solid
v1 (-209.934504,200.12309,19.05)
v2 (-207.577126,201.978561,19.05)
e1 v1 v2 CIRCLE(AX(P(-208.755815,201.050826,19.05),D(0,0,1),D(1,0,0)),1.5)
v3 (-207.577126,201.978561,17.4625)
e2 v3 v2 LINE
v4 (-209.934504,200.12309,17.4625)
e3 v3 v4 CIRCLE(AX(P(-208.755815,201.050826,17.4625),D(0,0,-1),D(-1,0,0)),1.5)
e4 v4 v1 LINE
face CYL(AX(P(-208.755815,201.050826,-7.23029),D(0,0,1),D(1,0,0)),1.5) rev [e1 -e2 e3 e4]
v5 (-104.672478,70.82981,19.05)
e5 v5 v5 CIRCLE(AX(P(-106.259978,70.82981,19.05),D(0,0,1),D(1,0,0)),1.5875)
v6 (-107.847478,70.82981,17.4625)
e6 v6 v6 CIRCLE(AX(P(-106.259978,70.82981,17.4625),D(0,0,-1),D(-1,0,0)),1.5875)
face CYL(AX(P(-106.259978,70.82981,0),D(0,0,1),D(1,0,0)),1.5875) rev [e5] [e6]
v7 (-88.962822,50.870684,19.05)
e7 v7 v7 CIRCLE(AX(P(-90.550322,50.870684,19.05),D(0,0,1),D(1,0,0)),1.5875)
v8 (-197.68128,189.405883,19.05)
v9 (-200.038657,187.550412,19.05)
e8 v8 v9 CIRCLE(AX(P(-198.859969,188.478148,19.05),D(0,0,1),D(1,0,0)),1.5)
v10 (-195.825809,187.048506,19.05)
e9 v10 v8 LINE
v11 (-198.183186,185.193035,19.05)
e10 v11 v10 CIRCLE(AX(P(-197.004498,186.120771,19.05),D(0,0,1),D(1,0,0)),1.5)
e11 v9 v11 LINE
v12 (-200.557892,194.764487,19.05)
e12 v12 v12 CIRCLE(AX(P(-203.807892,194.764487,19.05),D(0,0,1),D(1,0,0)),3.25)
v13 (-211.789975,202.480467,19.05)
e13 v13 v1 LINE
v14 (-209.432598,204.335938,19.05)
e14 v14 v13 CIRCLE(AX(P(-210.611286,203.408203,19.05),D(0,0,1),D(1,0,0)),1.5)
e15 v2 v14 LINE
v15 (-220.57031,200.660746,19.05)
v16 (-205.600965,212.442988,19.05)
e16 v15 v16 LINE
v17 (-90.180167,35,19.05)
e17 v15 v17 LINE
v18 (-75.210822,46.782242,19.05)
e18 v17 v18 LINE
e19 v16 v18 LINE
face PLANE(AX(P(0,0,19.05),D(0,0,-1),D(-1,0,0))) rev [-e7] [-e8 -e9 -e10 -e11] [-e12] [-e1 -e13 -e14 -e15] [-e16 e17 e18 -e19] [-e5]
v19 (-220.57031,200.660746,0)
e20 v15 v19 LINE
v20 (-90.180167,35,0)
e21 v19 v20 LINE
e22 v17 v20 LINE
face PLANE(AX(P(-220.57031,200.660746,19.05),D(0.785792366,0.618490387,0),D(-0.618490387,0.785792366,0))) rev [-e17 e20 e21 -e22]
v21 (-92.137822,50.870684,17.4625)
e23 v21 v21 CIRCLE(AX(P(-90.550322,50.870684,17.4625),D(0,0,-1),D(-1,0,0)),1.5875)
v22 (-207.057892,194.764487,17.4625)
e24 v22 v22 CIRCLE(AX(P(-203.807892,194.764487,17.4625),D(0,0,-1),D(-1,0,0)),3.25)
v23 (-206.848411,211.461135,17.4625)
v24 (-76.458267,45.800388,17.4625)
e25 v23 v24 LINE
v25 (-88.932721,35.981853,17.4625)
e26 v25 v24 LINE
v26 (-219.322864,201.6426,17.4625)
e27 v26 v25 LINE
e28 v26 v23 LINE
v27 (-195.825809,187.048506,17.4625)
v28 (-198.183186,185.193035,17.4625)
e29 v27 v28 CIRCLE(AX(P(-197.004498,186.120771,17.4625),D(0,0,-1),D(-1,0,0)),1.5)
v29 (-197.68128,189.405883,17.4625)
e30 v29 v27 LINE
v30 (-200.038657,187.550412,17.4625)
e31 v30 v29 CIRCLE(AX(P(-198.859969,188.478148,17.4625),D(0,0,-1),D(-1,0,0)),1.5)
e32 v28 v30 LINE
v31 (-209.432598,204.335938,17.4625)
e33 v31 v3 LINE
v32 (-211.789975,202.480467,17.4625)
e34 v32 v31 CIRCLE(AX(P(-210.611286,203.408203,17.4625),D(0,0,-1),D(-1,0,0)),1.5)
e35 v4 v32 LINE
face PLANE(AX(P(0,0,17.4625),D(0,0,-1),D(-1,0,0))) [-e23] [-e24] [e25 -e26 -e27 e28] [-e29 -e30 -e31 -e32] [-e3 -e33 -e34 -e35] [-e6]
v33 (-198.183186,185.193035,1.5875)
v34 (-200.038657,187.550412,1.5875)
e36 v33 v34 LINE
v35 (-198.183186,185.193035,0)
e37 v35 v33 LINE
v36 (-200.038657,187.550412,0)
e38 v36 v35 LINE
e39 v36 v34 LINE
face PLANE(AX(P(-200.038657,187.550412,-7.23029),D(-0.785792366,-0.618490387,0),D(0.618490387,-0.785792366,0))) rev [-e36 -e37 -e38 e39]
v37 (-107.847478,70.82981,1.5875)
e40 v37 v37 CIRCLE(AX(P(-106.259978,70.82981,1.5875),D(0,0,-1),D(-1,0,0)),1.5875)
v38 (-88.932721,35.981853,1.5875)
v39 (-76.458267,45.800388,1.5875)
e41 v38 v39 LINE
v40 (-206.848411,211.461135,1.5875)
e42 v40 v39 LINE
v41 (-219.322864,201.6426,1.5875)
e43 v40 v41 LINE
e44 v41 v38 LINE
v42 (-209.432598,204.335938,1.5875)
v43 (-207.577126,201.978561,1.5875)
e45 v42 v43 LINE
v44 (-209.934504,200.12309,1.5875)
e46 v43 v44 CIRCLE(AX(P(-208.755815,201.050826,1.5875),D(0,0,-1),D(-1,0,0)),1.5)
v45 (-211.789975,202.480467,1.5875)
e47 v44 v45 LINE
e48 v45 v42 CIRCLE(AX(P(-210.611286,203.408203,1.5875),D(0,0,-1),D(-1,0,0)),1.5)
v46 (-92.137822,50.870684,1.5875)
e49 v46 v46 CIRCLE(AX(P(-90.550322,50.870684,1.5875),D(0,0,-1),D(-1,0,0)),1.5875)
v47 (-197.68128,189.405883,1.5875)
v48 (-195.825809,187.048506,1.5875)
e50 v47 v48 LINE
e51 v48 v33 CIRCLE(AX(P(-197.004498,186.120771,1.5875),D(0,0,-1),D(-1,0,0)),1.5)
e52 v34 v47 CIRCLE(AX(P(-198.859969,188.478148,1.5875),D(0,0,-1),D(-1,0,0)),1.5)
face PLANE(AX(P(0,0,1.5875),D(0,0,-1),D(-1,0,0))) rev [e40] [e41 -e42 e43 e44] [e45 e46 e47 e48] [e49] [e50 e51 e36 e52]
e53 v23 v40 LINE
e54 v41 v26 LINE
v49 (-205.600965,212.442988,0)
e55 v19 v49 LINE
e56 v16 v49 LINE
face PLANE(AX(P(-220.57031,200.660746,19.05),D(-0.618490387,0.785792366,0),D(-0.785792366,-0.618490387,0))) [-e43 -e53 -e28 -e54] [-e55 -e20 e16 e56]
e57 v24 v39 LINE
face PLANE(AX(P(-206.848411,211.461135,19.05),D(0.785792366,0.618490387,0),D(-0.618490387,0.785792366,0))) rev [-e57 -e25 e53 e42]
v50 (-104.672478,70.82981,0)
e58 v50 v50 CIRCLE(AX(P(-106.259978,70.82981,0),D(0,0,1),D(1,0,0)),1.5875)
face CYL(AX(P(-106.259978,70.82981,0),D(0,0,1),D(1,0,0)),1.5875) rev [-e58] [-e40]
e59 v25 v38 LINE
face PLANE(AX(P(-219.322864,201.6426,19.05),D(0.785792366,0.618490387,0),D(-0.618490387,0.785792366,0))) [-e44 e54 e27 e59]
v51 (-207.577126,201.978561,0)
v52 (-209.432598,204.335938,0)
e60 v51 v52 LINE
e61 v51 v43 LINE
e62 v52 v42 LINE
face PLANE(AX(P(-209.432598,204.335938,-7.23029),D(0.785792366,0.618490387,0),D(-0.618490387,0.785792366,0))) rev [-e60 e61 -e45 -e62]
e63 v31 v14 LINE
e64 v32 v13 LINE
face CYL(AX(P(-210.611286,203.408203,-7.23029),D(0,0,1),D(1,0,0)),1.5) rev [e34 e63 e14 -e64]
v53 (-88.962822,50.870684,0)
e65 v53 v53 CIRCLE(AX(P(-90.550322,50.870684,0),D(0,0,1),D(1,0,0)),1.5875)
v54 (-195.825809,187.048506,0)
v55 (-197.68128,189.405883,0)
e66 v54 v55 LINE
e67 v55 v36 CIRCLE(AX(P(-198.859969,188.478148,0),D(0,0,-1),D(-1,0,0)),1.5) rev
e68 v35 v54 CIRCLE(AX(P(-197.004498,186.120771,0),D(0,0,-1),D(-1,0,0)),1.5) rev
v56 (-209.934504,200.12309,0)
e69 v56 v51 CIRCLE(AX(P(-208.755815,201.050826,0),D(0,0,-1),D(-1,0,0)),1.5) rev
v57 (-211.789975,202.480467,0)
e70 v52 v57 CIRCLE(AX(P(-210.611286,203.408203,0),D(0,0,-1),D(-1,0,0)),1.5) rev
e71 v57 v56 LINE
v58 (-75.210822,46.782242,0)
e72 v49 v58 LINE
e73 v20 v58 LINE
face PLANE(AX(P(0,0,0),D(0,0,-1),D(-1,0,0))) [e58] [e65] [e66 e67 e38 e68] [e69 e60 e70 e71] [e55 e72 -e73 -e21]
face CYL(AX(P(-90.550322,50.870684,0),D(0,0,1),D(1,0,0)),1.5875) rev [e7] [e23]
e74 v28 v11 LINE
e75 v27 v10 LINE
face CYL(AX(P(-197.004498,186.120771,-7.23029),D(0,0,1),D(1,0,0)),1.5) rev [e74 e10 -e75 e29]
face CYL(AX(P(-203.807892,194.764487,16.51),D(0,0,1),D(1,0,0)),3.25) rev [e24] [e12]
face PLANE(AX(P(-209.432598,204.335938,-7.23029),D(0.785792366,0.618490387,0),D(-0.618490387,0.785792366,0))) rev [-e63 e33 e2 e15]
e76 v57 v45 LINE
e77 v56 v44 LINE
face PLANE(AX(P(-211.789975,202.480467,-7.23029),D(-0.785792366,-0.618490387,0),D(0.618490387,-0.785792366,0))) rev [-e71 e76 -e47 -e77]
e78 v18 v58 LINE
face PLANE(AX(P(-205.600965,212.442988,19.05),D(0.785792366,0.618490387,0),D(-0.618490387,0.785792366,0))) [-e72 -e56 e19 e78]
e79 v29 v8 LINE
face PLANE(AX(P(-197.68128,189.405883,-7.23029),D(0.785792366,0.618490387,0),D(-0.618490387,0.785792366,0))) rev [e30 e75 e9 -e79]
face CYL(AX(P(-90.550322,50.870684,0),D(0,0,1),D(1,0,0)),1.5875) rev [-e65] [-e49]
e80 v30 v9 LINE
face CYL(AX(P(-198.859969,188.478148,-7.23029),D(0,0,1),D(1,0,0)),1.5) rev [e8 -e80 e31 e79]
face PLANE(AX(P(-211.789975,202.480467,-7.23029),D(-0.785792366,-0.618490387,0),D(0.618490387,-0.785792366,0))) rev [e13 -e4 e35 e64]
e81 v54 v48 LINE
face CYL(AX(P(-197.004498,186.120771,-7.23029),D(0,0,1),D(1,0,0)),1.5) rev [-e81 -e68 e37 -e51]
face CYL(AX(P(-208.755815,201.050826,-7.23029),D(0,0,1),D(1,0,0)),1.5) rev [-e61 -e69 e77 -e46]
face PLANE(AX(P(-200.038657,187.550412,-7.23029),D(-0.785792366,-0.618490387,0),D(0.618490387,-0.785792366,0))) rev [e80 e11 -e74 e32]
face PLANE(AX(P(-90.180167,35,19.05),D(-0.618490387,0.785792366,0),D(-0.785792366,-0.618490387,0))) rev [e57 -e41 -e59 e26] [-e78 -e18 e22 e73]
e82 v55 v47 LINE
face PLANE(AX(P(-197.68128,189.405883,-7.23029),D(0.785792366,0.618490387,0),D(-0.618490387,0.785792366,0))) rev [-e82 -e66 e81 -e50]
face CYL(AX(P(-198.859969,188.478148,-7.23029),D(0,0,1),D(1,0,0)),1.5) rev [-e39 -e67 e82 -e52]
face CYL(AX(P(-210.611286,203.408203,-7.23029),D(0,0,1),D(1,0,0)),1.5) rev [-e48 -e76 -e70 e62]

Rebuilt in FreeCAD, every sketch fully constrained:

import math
import FreeCAD as App
import Part
import Sketcher
Q = App.Units.Quantity


def faces_at(feature, points):
    """Names of the faces that lie closest to the given points."""
    faces = feature.Shape.Faces
    near = lambda p: min(range(len(faces)), key=lambda i: faces[i].distToShape(Part.Vertex(*p))[0])
    return sorted({f"Face{near(p) + 1}" for p in points})

doc = App.newDocument("Part")
body = doc.addObject("PartDesign::Body", "Body")

sketch1 = body.newObject("Sketcher::SketchObject", "Sketch")
sketch1.AttachmentSupport = (doc.getObject("XY_Plane"), [""])
sketch1.MapMode = "FlatFace"
sketch1.addGeometry([
    Part.LineSegment(App.Vector(-206, 212, 0), App.Vector(-221, 201, 0)),
    Part.LineSegment(App.Vector(-221, 201, 0), App.Vector(-90, 35, 0)),
    Part.LineSegment(App.Vector(-90, 35, 0), App.Vector(-75, 47, 0)),
    Part.LineSegment(App.Vector(-75, 47, 0), App.Vector(-206, 212, 0)),
], False)
sketch1.addConstraint([
    Sketcher.Constraint("Coincident", 0, 2, 1, 1),
    Sketcher.Constraint("Coincident", 1, 2, 2, 1),
    Sketcher.Constraint("Coincident", 2, 2, 3, 1),
    Sketcher.Constraint("Coincident", 3, 2, 0, 1),
    Sketcher.Constraint("Perpendicular", 0, 1),
    Sketcher.Constraint("Perpendicular", 1, 2),
    Sketcher.Constraint("Perpendicular", 2, 3),
    Sketcher.Constraint("Distance", 1, Q("8.3 in")),
    Sketcher.Constraint("Distance", 0, Q("0.75 in")),
    Sketcher.Constraint("DistanceY", -1, 1, 1, 2, 35.0),
    Sketcher.Constraint("DistanceX", 3, 2, 1, 2, 115.420799),
    Sketcher.Constraint("DistanceX", 0, 2, -1, 1, 220.57031),
])
pad1 = body.newObject("PartDesign::Pad", "Pad")
pad1.Profile = sketch1
pad1.Length = Q("0.75 in")
doc.recompute()

thickness = body.newObject("PartDesign::Thickness", "Thickness")
thickness.Base = (pad1, faces_at(pad1, [(-82.695, 40.891, 9.525)]))
thickness.Value = Q("0.0625 in")
thickness.Reversed = True
thickness.Join = "Intersection"

sketch2 = body.newObject("Sketcher::SketchObject", "Sketch001")
sketch2.Placement = App.Placement(App.Vector(-181.896971, 231.100198, 0), App.Rotation(App.Vector(0.785792365, 0.618490387, 0), App.Vector(0, 0, -1), App.Vector(-0.618490387, 0.785792365, 0), "ZXY"))
sketch2.addGeometry([
    Part.LineSegment(App.Vector(-48, -2, 0), App.Vector(-48, -17, 0)),
    Part.LineSegment(App.Vector(-48, -17, 0), App.Vector(-32, -17, 0)),
    Part.LineSegment(App.Vector(-32, -17, 0), App.Vector(-32, -2, 0)),
    Part.LineSegment(App.Vector(-32, -2, 0), App.Vector(-48, -2, 0)),
], False)
sketch2.addConstraint([
    Sketcher.Constraint("Coincident", 0, 2, 1, 1),
    Sketcher.Constraint("Coincident", 1, 2, 2, 1),
    Sketcher.Constraint("Coincident", 2, 2, 3, 1),
    Sketcher.Constraint("Coincident", 3, 2, 0, 1),
    Sketcher.Constraint("Vertical", 0),
    Sketcher.Constraint("Horizontal", 1),
    Sketcher.Constraint("Vertical", 2),
    Sketcher.Constraint("Horizontal", 3),
    Sketcher.Constraint("Equal", 3, 0),
    Sketcher.Constraint("DistanceX", 1, 1, 1, 2, Q("0.625 in")),
    Sketcher.Constraint("DistanceY", 0, 2, -1, 1, Q("0.6875 in")),
    Sketcher.Constraint("DistanceX", 0, 2, -1, 1, 47.628223),
])
pocket1 = body.newObject("PartDesign::Pocket", "Pocket")
pocket1.Profile = sketch2
pocket1.Type = "ThroughAll"

sketch3 = body.newObject("Sketcher::SketchObject", "Sketch002")
sketch3.AttachmentSupport = (doc.getObject("XY_Plane"), [""])
sketch3.MapMode = "FlatFace"
sketch3.AttachmentOffset = App.Placement(App.Vector(0, 0, 0.75 * 25.4), App.Rotation())
sketch3.addGeometry(Part.Circle(App.Vector(-203.8, 194.8, 0), App.Vector(0, 0, 1), 3.2), False)
sketch3.addConstraint([
    Sketcher.Constraint("Diameter", 0, 6.5),
    Sketcher.Constraint("DistanceX", 0, 3, -1, 1, 203.807892),
    Sketcher.Constraint("DistanceY", -1, 1, 0, 3, 194.764487),
])
pocket2 = body.newObject("PartDesign::Pocket", "Pocket001")
pocket2.Profile = sketch3
pocket2.Length = Q("0.1 in")

sketch4 = body.newObject("Sketcher::SketchObject", "Sketch003")
sketch4.AttachmentSupport = (doc.getObject("XY_Plane"), [""])
sketch4.MapMode = "FlatFace"
sketch4.AttachmentOffset = App.Placement(App.Vector(0, 0, 0.75 * 25.4), App.Rotation())
sketch4.addGeometry([
    Part.Circle(App.Vector(-106.3, 70.8, 0), App.Vector(0, 0, 1), 1.6),
    Part.Circle(App.Vector(-90.6, 50.9, 0), App.Vector(0, 0, 1), 1.6),
], False)
sketch4.addConstraint([
    Sketcher.Constraint("Equal", 0, 1),
    Sketcher.Constraint("Diameter", 0, Q("0.125 in")),
    Sketcher.Constraint("DistanceX", 0, 3, -1, 1, 106.259978),
    Sketcher.Constraint("DistanceY", -1, 1, 0, 3, 70.82981),
    Sketcher.Constraint("DistanceX", 1, 3, -1, 1, 90.550322),
    Sketcher.Constraint("DistanceY", -1, 1, 1, 3, 50.870684),
])
pocket3 = body.newObject("PartDesign::Pocket", "Pocket002")
pocket3.Profile = sketch4
pocket3.Type = "ThroughAll"

sketch5 = body.newObject("Sketcher::SketchObject", "Sketch004")
sketch5.AttachmentSupport = (doc.getObject("XY_Plane"), [""])
sketch5.MapMode = "FlatFace"
sketch5.AttachmentOffset = App.Placement(App.Vector(0, 0, 0.75 * 25.4), App.Rotation())
sketch5.addGeometry([
    Part.LineSegment(App.Vector(-195.8, 187, 0), App.Vector(-197.7, 189.4, 0)),
    Part.ArcOfCircle(Part.Circle(App.Vector(-198.9, 188.5, 0), App.Vector(0, 0, 1), 1.5), math.radians(38), math.radians(218)),
    Part.LineSegment(App.Vector(-200, 187.6, 0), App.Vector(-198.2, 185.2, 0)),
    Part.ArcOfCircle(Part.Circle(App.Vector(-197, 186.1, 0), App.Vector(0, 0, 1), 1.5), math.radians(-142), math.radians(38)),
    Part.LineSegment(App.Vector(-207.6, 202, 0), App.Vector(-209.4, 204.3, 0)),
    Part.ArcOfCircle(Part.Circle(App.Vector(-210.6, 203.4, 0), App.Vector(0, 0, 1), 1.5), math.radians(38), math.radians(218)),
    Part.LineSegment(App.Vector(-211.8, 202.5, 0), App.Vector(-209.9, 200.1, 0)),
    Part.ArcOfCircle(Part.Circle(App.Vector(-208.8, 201.1, 0), App.Vector(0, 0, 1), 1.5), math.radians(-142), math.radians(38)),
], False)
sketch5.addConstraint([
    Sketcher.Constraint("Tangent", 0, 2, 1, 1),
    Sketcher.Constraint("Tangent", 1, 2, 2, 1),
    Sketcher.Constraint("Tangent", 2, 2, 3, 1),
    Sketcher.Constraint("Tangent", 3, 2, 0, 1),
    Sketcher.Constraint("Tangent", 4, 2, 5, 1),
    Sketcher.Constraint("Tangent", 5, 2, 6, 1),
    Sketcher.Constraint("Tangent", 6, 2, 7, 1),
    Sketcher.Constraint("Tangent", 7, 2, 4, 1),
    Sketcher.Constraint("Equal", 1, 3),
    Sketcher.Constraint("Equal", 3, 5),
    Sketcher.Constraint("Equal", 5, 7),
    Sketcher.Constraint("Parallel", 2, 4),
    Sketcher.Constraint("Equal", 2, 4),
    Sketcher.Constraint("Radius", 1, 1.5),
    Sketcher.Constraint("Distance", 0, 3.0),
    Sketcher.Constraint("DistanceX", 1, 3, -1, 1, 198.859969),
    Sketcher.Constraint("DistanceY", -1, 1, 3, 3, 186.120771),
    Sketcher.Constraint("DistanceX", 0, 2, -1, 1, 197.68128),
    Sketcher.Constraint("DistanceY", -1, 1, 4, 2, 204.335938),
    Sketcher.Constraint("DistanceX", 5, 3, 3, 3, 13.606789),
])
pocket4 = body.newObject("PartDesign::Pocket", "Pocket003")
pocket4.Profile = sketch5
pocket4.Length = Q("0.75 in")

doc.recompute()
